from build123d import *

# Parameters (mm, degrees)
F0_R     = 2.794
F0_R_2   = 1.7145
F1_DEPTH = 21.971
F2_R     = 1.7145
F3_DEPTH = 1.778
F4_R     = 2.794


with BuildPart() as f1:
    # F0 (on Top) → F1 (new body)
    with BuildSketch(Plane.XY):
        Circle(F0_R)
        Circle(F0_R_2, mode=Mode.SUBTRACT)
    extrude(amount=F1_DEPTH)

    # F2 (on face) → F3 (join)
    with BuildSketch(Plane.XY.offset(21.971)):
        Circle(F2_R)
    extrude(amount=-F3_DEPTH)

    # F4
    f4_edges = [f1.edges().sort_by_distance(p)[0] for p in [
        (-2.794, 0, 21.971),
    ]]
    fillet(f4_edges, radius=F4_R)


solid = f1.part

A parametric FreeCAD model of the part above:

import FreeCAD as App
import Part
import Sketcher

V = App.Vector
Q = App.Units.Quantity


def edges_at(feature, points):
    """Names of the edges that pass closest to the given points."""
    edges = feature.Shape.Edges
    near = lambda p: min(range(len(edges)), key=lambda i: edges[i].distToShape(Part.Vertex(*p))[0])
    return sorted({f"Edge{near(p) + 1}" for p in points})

doc = App.newDocument("Part")
params = doc.addObject("Spreadsheet::Sheet", "Params")
for row, (alias, value) in enumerate([
    ("sketch1_diameter", "0.22 in"),
    ("sketch1_diameter2", "0.135 in"),
    ("pad1_length", "0.865 in"),
    ("sketch2_diameter", "0.135 in"),
    ("pad2_length", "0.07 in"),
    ("fillet_radius", "0.11 in"),
], start=1):
    params.set(f"A{row}", alias)
    params.set(f"B{row}", "=" + value)
    params.setAlias(f"B{row}", alias)

body = doc.addObject("PartDesign::Body", "Body")

# Sketch on XY plane
sketch1 = doc.addObject("Sketcher::SketchObject", "Sketch")
body.addObject(sketch1)
sketch1.AttachmentSupport = (doc.XY_Plane, [""])
sketch1.MapMode = "FlatFace"
sketch1.addGeometry([
    Part.Circle(V(0, 0, 0), V(0, 0, 1), 2.8),
    Part.Circle(V(0, 0, 0), V(0, 0, 1), 1.7),
], False)
sketch1.addConstraint([
    Sketcher.Constraint("Coincident", 0, 3, -1, 1),
    Sketcher.Constraint("Coincident", 1, 3, -1, 1),
    Sketcher.Constraint("Diameter", 0, Q("0.22 in")),
    Sketcher.Constraint("Diameter", 1, Q("0.135 in")),
])
sketch1.setExpression("Constraints[2]", "Params.sketch1_diameter")
sketch1.setExpression("Constraints[3]", "Params.sketch1_diameter2")
pad1 = doc.addObject("PartDesign::Pad", "Pad")
body.addObject(pad1)
pad1.Profile = sketch1
pad1.setExpression("Length", "Params.pad1_length")

# Sketch on XY plane
sketch2 = doc.addObject("Sketcher::SketchObject", "Sketch001")
body.addObject(sketch2)
sketch2.AttachmentSupport = (doc.XY_Plane, [""])
sketch2.MapMode = "FlatFace"
sketch2.AttachmentOffset = App.Placement(V(0, 0, 0.865 * 25.4), App.Rotation())
sketch2.addGeometry(Part.Circle(V(0, 0, 0), V(0, 0, 1), 1.7), False)
sketch2.addConstraint([
    Sketcher.Constraint("Coincident", 0, 3, -1, 1),
    Sketcher.Constraint("Diameter", 0, Q("0.135 in")),
])
sketch2.setExpression("Constraints[1]", "Params.sketch2_diameter")
pad2 = doc.addObject("PartDesign::Pad", "Pad001")
body.addObject(pad2)
pad2.Profile = sketch2
pad2.setExpression("Length", "Params.pad2_length")
pad2.Reversed = True
doc.recompute()

fillet = doc.addObject("PartDesign::Fillet", "Fillet")
body.addObject(fillet)
fillet.Base = (pad2, edges_at(pad2, [(-2.794, 0, 21.971)]))
fillet.setExpression("Radius", "Params.fillet_radius")

doc.recompute()
